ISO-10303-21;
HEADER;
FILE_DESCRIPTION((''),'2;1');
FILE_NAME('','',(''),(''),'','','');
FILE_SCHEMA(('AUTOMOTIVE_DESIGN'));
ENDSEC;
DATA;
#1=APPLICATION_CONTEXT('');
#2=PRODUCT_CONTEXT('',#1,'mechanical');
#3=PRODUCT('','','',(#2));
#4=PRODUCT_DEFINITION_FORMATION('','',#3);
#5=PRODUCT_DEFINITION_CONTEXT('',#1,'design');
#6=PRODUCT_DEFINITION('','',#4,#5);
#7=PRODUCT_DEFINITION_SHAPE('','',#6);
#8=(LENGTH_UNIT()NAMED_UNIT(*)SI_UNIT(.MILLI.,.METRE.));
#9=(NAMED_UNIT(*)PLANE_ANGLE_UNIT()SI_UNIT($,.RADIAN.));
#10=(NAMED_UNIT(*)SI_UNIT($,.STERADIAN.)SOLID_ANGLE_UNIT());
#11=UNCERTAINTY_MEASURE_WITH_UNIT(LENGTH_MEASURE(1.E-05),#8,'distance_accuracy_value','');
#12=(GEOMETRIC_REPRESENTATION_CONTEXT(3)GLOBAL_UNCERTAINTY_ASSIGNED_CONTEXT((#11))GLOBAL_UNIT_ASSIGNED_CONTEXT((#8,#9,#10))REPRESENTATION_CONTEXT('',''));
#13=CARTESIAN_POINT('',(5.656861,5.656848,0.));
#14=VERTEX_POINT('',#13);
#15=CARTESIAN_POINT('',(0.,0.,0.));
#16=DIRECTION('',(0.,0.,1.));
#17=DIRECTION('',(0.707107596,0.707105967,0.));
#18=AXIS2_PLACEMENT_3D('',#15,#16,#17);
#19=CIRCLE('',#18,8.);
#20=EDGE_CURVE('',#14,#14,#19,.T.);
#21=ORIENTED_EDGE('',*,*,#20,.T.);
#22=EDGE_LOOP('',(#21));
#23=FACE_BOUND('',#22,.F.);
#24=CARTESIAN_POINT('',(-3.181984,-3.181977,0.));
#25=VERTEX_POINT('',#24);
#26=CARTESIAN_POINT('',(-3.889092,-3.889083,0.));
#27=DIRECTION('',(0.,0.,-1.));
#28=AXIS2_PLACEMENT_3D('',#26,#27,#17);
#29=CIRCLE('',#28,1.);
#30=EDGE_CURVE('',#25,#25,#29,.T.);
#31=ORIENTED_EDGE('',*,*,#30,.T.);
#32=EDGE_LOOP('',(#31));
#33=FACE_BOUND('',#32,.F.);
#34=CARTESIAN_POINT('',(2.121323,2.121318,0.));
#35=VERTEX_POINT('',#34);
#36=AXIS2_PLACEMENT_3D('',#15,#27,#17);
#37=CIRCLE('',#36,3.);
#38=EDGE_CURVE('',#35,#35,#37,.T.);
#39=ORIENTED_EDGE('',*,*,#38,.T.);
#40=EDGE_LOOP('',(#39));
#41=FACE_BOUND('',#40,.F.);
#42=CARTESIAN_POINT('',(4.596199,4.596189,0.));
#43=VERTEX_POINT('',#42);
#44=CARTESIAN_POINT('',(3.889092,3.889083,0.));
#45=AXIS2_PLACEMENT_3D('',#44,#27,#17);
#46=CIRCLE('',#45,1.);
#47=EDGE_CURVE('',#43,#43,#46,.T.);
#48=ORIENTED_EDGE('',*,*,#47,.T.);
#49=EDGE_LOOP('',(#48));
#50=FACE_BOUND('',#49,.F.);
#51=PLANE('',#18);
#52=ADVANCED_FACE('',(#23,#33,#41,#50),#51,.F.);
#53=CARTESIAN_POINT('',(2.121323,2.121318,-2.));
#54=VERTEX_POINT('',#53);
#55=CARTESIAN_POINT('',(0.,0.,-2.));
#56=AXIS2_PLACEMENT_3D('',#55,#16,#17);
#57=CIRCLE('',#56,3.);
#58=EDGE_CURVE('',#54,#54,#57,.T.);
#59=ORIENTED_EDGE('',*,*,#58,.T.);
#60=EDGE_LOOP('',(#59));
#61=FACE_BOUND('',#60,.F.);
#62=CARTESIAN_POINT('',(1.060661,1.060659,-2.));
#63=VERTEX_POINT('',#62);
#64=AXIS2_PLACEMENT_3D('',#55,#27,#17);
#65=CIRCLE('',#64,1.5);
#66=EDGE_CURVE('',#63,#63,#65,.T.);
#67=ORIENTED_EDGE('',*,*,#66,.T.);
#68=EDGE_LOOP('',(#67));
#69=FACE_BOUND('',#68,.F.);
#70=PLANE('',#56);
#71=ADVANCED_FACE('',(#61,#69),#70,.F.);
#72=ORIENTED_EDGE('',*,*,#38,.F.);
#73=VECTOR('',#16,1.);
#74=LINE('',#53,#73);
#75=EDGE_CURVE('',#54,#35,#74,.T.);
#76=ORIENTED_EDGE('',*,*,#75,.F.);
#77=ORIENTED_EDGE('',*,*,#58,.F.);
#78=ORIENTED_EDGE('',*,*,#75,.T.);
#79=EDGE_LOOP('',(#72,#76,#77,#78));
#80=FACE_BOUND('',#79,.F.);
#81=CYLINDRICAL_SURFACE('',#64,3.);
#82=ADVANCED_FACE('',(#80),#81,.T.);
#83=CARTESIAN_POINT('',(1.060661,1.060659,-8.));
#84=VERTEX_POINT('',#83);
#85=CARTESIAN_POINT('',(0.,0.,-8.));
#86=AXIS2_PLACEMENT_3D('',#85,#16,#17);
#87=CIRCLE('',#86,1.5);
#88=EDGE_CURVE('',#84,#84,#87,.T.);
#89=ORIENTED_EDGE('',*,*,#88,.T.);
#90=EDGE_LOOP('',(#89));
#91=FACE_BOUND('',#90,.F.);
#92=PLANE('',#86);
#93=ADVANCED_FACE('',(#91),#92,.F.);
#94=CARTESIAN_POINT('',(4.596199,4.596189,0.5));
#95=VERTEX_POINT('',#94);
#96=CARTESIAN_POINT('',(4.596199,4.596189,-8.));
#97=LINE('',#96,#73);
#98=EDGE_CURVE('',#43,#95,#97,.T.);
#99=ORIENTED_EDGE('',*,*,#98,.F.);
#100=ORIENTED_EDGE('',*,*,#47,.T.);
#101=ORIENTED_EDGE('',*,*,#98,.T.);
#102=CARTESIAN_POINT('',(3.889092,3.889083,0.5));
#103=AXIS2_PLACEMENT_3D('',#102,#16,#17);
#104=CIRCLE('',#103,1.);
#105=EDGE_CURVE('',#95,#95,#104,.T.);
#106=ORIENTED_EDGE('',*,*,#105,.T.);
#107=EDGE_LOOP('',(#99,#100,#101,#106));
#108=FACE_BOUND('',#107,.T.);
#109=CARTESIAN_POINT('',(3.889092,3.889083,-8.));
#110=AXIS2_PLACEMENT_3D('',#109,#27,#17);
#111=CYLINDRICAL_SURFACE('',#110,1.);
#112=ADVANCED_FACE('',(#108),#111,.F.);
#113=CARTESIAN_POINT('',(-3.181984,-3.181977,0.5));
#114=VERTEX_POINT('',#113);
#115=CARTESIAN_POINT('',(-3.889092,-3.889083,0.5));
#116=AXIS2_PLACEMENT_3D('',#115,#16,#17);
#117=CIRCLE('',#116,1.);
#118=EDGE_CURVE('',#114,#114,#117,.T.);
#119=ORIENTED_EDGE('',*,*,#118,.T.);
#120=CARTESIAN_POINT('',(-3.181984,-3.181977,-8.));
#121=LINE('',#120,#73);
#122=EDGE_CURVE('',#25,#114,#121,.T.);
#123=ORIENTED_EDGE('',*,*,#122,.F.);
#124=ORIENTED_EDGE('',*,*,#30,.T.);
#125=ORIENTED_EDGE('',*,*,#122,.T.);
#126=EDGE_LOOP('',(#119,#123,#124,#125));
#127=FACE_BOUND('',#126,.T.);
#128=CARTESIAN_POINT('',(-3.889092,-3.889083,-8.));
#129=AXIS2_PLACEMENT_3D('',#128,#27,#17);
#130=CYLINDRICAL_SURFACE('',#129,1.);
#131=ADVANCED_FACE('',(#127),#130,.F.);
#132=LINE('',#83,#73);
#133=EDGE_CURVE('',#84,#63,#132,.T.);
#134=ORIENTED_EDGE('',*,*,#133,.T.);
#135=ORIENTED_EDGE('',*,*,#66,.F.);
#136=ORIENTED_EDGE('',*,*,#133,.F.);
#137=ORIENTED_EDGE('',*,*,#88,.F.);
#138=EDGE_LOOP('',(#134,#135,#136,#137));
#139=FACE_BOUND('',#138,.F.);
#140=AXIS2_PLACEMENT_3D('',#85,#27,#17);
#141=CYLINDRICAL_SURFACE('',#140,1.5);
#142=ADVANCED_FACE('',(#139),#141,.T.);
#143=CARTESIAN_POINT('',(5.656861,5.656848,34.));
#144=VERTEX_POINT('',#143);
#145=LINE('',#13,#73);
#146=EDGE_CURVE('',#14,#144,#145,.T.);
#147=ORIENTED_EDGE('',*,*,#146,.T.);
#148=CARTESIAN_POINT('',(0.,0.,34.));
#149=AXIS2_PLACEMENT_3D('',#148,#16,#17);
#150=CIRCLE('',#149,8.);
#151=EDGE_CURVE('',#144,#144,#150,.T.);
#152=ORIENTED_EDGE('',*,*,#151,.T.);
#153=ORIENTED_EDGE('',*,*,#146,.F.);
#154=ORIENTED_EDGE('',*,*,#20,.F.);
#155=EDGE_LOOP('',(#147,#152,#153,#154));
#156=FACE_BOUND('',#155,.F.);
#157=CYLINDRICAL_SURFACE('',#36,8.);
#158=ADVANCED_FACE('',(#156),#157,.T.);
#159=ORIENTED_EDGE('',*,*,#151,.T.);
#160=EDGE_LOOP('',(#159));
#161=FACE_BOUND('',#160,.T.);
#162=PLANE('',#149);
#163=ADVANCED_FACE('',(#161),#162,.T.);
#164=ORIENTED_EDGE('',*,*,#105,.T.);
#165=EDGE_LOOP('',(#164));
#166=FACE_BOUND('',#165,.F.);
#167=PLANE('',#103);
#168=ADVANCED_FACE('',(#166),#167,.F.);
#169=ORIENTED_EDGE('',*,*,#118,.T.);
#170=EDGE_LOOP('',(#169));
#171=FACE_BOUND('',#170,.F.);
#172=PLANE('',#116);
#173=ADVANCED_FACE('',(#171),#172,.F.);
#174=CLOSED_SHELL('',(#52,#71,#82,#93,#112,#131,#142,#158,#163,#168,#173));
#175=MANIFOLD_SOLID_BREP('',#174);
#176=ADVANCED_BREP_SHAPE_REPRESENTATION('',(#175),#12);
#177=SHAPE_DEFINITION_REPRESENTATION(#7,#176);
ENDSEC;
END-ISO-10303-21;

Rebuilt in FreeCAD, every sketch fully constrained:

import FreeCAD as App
import Part
import Sketcher

doc = App.newDocument("Part")
body = doc.addObject("PartDesign::Body", "Body")

sketch1 = doc.addObject("Sketcher::SketchObject", "Sketch")
body.addObject(sketch1)
sketch1.AttachmentSupport = (doc.XY_Plane, [""])
sketch1.MapMode = "FlatFace"
sketch1.AttachmentOffset = App.Placement(App.Vector(0, 0, -2), App.Rotation())
sketch1.addGeometry(Part.Circle(App.Vector(0, 0, 0), App.Vector(0, 0, 1), 3), False)
sketch1.addConstraint([
    Sketcher.Constraint("Coincident", 0, 3, -1, 1),
    Sketcher.Constraint("Diameter", 0, 6.0),
])
pad1 = doc.addObject("PartDesign::Pad", "Pad")
body.addObject(pad1)
pad1.Profile = sketch1
pad1.Length = 2.5
body2 = doc.addObject("PartDesign::Body", "Body001")

sketch2 = doc.addObject("Sketcher::SketchObject", "Sketch001")
body2.addObject(sketch2)
sketch2.AttachmentSupport = (doc.getObject("XY_Plane001"), [""])
sketch2.MapMode = "FlatFace"
sketch2.AttachmentOffset = App.Placement(App.Vector(0, 0, -8), App.Rotation())
sketch2.addGeometry(Part.Circle(App.Vector(-5.5, 0, 0), App.Vector(0, 0, 1), 1), False)
sketch2.addConstraint([
    Sketcher.Constraint("PointOnObject", 0, 3, -1),
    Sketcher.Constraint("Diameter", 0, 2.0),
    Sketcher.Constraint("DistanceX", 0, 3, -1, 1, 5.5),
])
pad2 = doc.addObject("PartDesign::Pad", "Pad001")
body2.addObject(pad2)
pad2.Profile = sketch2
pad2.Length = 8.5
body3 = doc.addObject("PartDesign::Body", "Body002")

sketch3 = doc.addObject("Sketcher::SketchObject", "Sketch002")
body3.addObject(sketch3)
sketch3.AttachmentSupport = (doc.getObject("XY_Plane002"), [""])
sketch3.MapMode = "FlatFace"
sketch3.AttachmentOffset = App.Placement(App.Vector(0, 0, -8), App.Rotation())
sketch3.addGeometry(Part.Circle(App.Vector(5.5, 0, 0), App.Vector(0, 0, 1), 1), False)
sketch3.addConstraint([
    Sketcher.Constraint("PointOnObject", 0, 3, -1),
    Sketcher.Constraint("Diameter", 0, 2.0),
    Sketcher.Constraint("DistanceX", -1, 1, 0, 3, 5.5),
])
pad3 = doc.addObject("PartDesign::Pad", "Pad002")
body3.addObject(pad3)
pad3.Profile = sketch3
pad3.Length = 8.5
body4 = doc.addObject("PartDesign::Body", "Body003")

sketch4 = doc.addObject("Sketcher::SketchObject", "Sketch003")
body4.addObject(sketch4)
sketch4.AttachmentSupport = (doc.getObject("XY_Plane003"), [""])
sketch4.MapMode = "FlatFace"
sketch4.addGeometry(Part.Circle(App.Vector(0, 0, 0), App.Vector(0, 0, 1), 8), False)
sketch4.addConstraint([
    Sketcher.Constraint("Coincident", 0, 3, -1, 1),
    Sketcher.Constraint("Diameter", 0, 16.0),
])
pad4 = doc.addObject("PartDesign::Pad", "Pad003")
body4.addObject(pad4)
pad4.Profile = sketch4
pad4.Length = 34
doc.recompute()

boolean = doc.addObject("PartDesign::Boolean", "Boolean")
body4.addObject(boolean)
boolean.Type = "Cut"
boolean.addObjects([body3])
doc.recompute()

boolean2 = doc.addObject("PartDesign::Boolean", "Boolean001")
body4.addObject(boolean2)
boolean2.Type = "Cut"
boolean2.addObjects([body2])
body5 = doc.addObject("PartDesign::Body", "Body004")

sketch5 = doc.addObject("Sketcher::SketchObject", "Sketch004")
body5.addObject(sketch5)
sketch5.AttachmentSupport = (doc.getObject("XY_Plane004"), [""])
sketch5.MapMode = "FlatFace"
sketch5.AttachmentOffset = App.Placement(App.Vector(0, 0, -8), App.Rotation())
sketch5.addGeometry(Part.Circle(App.Vector(0, 0, 0), App.Vector(0, 0, 1), 1.5), False)
sketch5.addConstraint([
    Sketcher.Constraint("Coincident", 0, 3, -1, 1),
    Sketcher.Constraint("Diameter", 0, 3.0),
])
pad5 = doc.addObject("PartDesign::Pad", "Pad004")
body5.addObject(pad5)
pad5.Profile = sketch5
pad5.Length = 8
doc.recompute()

boolean3 = doc.addObject("PartDesign::Boolean", "Boolean002")
body5.addObject(boolean3)
boolean3.Type = "Fuse"
boolean3.addObjects([body])
doc.recompute()

boolean4 = doc.addObject("PartDesign::Boolean", "Boolean003")
body5.addObject(boolean4)
boolean4.Type = "Fuse"
boolean4.addObjects([body4])
body6 = doc.addObject("PartDesign::Body", "Body005")
doc.recompute()

body5.Placement = App.Placement(App.Vector(0, 0, 0), App.Rotation(App.Vector(0, 0, 1), 44.999934))
boolean5 = doc.addObject("PartDesign::Boolean", "Boolean004")
body6.addObject(boolean5)
boolean5.Type = "Fuse"
boolean5.addObjects([body5])

doc.recompute()
